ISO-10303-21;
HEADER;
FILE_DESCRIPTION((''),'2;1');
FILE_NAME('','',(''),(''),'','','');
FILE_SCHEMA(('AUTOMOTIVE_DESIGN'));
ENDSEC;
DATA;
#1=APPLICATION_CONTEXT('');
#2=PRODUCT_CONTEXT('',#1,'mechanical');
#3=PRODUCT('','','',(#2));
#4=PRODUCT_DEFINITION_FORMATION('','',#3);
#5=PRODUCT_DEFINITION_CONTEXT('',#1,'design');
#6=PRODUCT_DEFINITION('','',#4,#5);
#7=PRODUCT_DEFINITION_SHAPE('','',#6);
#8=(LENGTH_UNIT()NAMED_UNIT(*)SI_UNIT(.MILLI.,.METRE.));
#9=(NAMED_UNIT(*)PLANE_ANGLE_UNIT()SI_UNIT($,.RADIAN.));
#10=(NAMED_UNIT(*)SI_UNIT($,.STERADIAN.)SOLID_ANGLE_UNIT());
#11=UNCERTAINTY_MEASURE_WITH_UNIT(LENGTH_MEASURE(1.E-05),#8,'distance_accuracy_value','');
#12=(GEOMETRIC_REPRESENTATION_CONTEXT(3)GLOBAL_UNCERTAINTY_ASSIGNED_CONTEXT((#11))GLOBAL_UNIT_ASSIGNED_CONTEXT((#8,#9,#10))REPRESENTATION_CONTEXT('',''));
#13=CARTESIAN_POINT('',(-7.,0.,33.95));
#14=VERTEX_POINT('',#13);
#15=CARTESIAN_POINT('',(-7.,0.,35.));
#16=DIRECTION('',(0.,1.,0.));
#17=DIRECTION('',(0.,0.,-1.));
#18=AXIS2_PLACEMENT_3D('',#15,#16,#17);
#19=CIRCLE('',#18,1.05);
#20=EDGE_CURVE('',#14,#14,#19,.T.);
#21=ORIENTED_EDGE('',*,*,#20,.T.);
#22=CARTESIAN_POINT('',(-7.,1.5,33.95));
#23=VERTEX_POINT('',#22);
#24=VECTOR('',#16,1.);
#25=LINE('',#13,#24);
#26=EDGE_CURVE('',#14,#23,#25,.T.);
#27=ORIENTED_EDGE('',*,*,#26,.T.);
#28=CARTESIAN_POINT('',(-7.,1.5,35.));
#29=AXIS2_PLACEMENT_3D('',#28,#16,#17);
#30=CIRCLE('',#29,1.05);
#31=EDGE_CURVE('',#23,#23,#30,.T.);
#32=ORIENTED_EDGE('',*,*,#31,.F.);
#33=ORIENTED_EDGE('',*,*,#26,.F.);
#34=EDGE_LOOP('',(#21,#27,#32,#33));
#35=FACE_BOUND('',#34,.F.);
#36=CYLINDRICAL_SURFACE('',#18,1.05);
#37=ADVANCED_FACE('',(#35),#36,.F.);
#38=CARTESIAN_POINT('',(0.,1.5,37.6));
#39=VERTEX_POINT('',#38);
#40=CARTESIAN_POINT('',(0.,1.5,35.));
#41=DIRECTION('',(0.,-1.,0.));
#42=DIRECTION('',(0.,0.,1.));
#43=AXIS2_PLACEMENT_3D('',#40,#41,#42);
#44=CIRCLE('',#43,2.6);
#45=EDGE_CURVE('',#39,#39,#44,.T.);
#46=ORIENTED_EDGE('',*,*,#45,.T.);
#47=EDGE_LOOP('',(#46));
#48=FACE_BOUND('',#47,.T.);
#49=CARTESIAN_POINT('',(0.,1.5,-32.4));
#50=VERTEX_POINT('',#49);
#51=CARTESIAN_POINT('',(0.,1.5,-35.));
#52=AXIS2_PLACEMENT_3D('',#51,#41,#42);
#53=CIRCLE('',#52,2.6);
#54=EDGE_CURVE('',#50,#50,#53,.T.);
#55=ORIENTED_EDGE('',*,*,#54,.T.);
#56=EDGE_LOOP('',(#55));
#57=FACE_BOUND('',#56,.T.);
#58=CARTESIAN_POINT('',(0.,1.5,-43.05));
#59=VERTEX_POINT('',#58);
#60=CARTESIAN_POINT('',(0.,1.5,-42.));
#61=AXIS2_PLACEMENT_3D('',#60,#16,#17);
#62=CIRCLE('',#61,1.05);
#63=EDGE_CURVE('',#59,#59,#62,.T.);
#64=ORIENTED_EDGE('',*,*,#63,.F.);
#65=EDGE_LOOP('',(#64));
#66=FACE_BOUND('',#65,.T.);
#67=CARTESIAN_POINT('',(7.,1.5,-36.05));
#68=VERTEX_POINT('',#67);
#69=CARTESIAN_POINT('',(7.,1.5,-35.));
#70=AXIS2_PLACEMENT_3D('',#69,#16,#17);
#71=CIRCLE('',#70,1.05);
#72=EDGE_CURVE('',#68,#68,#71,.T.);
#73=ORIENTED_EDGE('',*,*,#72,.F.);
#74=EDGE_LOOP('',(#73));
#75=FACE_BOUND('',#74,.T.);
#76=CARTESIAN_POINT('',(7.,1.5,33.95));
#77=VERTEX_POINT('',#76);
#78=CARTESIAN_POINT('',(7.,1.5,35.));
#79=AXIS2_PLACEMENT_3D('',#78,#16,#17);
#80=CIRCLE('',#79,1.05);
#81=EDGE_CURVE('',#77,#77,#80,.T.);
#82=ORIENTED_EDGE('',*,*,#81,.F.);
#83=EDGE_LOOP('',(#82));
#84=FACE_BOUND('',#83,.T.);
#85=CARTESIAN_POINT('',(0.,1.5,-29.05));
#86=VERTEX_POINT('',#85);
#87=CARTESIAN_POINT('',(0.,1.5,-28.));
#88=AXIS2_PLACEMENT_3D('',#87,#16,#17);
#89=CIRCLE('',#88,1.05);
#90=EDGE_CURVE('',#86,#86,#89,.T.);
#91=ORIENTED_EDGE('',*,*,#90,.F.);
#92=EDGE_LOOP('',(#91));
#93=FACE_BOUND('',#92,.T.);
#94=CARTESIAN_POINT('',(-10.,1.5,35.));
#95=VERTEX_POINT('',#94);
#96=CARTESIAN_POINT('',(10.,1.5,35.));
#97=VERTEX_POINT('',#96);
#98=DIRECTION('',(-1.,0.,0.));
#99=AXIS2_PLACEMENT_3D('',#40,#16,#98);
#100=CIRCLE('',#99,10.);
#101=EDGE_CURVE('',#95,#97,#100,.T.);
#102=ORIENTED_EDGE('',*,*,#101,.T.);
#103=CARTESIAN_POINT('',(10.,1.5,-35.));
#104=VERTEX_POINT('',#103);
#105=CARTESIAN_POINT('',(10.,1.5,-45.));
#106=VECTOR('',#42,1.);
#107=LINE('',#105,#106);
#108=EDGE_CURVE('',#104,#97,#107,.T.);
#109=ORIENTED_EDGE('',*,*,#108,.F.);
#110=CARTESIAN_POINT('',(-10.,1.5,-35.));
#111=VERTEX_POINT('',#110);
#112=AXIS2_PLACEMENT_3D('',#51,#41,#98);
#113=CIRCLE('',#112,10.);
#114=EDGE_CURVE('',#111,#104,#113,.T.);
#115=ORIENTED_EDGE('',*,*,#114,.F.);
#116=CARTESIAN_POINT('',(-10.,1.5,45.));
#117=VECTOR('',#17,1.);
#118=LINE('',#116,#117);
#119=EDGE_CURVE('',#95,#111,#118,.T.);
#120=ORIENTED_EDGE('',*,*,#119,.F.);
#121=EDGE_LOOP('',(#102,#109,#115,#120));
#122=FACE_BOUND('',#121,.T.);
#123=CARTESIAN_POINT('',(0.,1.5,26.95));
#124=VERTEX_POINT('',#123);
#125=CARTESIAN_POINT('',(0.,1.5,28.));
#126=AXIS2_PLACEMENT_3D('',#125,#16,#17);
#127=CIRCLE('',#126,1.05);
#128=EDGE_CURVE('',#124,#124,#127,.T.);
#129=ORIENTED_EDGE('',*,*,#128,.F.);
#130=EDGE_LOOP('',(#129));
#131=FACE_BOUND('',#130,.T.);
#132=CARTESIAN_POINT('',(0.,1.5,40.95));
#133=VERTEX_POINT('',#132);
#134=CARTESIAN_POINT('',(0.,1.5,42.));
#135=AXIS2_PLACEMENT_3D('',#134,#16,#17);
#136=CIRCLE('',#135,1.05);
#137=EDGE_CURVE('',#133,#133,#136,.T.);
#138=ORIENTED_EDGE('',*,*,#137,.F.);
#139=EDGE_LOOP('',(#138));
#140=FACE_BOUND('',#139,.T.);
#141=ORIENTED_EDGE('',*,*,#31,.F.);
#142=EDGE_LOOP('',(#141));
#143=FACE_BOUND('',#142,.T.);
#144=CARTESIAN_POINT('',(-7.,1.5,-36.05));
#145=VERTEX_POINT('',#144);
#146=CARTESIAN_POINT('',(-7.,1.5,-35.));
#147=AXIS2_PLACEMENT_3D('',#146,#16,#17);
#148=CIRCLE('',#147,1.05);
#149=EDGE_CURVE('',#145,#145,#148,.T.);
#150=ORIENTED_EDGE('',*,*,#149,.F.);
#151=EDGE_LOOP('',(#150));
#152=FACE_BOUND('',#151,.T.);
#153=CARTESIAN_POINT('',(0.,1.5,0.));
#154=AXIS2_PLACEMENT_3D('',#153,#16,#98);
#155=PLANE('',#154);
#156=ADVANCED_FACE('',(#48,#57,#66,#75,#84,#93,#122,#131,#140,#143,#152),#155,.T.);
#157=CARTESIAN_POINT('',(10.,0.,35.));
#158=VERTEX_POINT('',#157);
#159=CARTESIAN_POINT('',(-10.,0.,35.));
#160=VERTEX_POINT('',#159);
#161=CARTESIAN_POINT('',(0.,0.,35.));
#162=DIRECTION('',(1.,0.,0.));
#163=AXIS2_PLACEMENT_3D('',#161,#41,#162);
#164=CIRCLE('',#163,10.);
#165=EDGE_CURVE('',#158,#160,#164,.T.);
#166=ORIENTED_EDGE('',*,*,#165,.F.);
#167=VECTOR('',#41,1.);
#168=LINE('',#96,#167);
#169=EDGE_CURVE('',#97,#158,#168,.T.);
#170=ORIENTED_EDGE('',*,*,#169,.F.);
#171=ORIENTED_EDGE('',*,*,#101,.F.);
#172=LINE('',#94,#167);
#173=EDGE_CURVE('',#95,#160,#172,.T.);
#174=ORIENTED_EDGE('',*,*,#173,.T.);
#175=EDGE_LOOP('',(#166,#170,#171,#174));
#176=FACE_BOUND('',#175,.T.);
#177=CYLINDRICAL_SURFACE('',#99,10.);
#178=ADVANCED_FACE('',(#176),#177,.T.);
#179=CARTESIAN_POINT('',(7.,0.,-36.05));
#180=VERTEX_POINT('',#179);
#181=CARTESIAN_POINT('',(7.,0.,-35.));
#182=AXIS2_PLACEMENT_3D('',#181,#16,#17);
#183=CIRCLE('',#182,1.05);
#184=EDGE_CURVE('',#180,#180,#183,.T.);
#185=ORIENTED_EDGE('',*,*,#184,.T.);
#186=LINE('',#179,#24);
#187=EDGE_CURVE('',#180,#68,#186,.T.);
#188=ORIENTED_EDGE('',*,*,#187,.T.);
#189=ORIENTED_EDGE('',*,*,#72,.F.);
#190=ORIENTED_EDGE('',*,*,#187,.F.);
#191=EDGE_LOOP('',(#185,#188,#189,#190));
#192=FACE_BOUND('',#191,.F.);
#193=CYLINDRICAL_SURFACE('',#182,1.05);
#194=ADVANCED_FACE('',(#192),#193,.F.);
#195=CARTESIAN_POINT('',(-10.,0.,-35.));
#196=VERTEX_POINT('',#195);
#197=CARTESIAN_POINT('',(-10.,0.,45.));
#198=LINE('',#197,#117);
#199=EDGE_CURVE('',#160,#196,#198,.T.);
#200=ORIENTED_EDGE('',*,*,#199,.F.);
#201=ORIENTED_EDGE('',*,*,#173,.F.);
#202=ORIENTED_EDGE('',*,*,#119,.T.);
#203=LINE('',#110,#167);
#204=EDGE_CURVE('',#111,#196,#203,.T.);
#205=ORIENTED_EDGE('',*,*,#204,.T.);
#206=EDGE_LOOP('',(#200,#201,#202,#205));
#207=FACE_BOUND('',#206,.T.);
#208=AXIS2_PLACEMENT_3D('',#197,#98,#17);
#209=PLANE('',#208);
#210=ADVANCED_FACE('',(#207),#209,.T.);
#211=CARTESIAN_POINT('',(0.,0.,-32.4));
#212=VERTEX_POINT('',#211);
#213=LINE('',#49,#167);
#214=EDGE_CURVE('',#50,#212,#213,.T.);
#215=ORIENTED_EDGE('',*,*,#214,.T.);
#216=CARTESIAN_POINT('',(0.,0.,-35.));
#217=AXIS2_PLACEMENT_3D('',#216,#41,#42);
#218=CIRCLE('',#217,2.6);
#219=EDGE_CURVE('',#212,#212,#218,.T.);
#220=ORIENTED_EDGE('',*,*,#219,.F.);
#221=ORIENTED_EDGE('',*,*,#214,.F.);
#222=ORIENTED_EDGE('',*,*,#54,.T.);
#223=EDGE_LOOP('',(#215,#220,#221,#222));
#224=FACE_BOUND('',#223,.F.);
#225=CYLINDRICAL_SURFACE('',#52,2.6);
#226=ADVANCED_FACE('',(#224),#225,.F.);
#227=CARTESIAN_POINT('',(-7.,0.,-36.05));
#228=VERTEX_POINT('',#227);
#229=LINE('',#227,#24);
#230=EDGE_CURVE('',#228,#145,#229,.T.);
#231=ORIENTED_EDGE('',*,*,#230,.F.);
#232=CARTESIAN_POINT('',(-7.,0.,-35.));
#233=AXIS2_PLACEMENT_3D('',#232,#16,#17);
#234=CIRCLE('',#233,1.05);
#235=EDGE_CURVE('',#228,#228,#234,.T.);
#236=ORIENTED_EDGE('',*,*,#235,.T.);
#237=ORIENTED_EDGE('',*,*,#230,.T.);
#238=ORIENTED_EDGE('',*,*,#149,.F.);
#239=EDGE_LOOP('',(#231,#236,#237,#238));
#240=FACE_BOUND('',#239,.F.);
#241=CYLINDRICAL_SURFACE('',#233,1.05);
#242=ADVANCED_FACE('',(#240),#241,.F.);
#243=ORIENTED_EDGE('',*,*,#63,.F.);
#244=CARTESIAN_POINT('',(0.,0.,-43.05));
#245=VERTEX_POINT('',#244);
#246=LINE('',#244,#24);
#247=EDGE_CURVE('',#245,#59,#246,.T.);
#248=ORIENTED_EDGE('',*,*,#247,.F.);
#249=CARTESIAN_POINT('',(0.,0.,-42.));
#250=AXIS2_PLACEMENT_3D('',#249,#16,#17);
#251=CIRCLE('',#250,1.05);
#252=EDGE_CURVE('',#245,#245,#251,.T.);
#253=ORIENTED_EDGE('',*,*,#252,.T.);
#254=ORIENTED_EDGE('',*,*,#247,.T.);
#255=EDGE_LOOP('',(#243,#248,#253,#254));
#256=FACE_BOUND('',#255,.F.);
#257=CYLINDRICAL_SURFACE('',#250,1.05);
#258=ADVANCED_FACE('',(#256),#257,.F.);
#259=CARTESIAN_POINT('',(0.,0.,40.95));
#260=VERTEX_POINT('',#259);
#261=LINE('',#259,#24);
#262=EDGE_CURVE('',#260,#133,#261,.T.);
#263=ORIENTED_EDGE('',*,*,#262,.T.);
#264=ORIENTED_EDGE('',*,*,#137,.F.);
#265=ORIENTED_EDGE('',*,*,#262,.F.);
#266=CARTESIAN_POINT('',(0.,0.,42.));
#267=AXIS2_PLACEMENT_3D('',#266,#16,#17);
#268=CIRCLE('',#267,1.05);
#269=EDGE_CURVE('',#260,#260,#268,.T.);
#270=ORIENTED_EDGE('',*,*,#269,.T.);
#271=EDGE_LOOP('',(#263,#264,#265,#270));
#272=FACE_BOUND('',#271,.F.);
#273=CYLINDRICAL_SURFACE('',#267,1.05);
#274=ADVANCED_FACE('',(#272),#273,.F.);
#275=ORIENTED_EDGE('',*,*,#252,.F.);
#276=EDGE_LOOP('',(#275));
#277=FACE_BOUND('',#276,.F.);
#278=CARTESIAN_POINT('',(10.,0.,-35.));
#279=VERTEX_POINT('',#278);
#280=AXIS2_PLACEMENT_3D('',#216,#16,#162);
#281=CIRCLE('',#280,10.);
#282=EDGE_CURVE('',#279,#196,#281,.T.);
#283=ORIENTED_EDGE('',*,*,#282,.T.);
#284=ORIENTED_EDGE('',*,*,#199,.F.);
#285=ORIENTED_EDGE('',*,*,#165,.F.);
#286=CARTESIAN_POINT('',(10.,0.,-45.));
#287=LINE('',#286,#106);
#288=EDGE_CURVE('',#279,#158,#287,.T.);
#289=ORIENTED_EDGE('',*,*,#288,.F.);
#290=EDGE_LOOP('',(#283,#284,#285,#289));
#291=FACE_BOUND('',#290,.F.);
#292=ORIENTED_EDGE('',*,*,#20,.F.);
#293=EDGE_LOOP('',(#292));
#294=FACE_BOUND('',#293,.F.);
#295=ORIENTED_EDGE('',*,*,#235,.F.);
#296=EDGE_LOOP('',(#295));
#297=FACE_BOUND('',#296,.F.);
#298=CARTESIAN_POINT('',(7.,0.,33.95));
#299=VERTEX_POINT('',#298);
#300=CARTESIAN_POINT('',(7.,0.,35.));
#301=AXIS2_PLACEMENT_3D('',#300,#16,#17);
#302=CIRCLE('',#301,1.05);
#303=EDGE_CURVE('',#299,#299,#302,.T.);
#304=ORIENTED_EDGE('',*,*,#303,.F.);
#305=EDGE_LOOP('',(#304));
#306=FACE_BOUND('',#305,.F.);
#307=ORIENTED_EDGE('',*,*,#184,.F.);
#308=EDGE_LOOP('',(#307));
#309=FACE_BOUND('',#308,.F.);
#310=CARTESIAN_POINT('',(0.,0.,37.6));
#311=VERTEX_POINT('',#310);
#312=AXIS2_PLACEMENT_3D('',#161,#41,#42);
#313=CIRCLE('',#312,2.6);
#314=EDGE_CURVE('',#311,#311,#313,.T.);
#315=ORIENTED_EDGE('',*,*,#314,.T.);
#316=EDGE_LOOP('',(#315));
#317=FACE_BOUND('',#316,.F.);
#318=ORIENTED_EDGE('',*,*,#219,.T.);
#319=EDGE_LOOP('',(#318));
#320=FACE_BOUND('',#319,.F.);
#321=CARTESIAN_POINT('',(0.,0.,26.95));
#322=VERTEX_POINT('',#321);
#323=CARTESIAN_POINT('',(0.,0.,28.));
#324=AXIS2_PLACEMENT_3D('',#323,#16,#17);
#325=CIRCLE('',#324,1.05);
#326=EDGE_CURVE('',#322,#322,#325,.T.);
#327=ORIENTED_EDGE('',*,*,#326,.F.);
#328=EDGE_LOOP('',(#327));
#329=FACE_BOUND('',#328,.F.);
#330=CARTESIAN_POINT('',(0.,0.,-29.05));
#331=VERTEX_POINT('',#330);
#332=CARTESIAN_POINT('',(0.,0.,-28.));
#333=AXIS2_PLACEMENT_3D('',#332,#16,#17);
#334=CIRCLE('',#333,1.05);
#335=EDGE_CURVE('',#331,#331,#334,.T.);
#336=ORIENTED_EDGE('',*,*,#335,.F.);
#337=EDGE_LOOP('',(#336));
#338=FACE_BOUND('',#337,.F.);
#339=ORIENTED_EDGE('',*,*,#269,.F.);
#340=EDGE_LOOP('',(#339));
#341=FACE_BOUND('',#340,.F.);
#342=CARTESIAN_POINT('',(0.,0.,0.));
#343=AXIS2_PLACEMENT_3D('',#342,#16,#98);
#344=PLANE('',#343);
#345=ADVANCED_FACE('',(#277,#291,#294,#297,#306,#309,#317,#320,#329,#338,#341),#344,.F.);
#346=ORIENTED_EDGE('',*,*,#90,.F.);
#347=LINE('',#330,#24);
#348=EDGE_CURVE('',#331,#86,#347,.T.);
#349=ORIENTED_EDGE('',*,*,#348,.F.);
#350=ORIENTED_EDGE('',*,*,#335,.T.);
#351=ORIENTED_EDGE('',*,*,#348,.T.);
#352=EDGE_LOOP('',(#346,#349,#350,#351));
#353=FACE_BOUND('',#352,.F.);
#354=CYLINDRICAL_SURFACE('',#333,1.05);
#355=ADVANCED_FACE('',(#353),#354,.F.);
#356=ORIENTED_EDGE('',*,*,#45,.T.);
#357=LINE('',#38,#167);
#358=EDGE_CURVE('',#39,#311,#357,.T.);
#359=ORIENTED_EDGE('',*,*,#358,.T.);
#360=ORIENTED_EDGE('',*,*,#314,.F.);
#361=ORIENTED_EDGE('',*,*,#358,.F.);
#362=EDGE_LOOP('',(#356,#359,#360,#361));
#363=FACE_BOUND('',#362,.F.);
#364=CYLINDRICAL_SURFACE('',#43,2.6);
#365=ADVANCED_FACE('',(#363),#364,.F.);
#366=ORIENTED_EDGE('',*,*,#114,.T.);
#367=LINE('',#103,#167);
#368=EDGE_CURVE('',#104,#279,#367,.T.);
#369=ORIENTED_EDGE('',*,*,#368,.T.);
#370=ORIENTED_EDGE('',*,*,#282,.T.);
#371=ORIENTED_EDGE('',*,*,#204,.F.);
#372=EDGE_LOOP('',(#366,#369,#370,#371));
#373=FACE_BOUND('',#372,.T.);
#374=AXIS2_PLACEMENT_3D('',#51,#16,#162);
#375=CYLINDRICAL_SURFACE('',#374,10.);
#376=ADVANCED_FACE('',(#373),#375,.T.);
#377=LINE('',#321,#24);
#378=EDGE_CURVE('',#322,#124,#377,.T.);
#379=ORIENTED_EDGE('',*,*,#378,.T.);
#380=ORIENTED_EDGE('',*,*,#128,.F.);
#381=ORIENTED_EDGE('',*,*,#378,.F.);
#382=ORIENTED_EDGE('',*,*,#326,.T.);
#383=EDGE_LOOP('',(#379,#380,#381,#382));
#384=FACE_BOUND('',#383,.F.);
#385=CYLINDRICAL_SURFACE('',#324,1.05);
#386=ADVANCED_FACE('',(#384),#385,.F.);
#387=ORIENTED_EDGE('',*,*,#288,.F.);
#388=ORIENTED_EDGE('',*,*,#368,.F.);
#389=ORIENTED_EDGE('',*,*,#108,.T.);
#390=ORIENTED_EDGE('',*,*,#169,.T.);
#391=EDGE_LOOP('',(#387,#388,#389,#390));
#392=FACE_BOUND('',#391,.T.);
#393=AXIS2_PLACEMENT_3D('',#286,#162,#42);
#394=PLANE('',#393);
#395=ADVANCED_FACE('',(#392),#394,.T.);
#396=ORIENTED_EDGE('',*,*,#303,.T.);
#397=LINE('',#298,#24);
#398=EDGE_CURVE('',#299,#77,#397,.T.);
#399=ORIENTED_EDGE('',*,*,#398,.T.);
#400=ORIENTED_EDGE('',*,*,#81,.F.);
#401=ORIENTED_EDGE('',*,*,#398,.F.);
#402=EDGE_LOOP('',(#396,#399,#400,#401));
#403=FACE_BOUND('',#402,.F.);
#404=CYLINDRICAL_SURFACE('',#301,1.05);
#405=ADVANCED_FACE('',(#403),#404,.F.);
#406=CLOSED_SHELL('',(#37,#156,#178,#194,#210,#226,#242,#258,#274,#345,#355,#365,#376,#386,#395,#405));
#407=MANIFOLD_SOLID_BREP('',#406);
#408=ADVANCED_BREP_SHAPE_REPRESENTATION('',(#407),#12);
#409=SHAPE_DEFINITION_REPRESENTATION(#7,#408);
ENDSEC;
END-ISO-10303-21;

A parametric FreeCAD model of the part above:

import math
import FreeCAD as App
import Part
import Sketcher


def add_polygon(sketch, points):
    """Adds a closed chain of lines whose ends are joined by coincident constraints."""
    first, n = sketch.GeometryCount, len(points)
    for a, b in zip(points, points[1:] + points[:1]):
        sketch.addGeometry(Part.LineSegment(App.Vector(*a, 0), App.Vector(*b, 0)), False)
    for i in range(n):
        sketch.addConstraint(Sketcher.Constraint("Coincident", first + i, 2, first + (i + 1) % n, 1))

doc = App.newDocument("Part")
body = doc.addObject("PartDesign::Body", "Body")

sketch1 = body.newObject("Sketcher::SketchObject", "Sketch")
sketch1.AttachmentSupport = (doc.getObject("XZ_Plane"), [""])
sketch1.MapMode = "FlatFace"
add_polygon(sketch1, [(10, -45), (-10, -45), (-10, 45), (10, 45)])
sketch1.addConstraint([
    Sketcher.Constraint("Horizontal", 0),
    Sketcher.Constraint("Vertical", 1),
    Sketcher.Constraint("Horizontal", 2),
    Sketcher.Constraint("Vertical", 3),
    Sketcher.Constraint("Symmetric", 0, 2, 2, 2, -1, 1),
    Sketcher.Constraint("DistanceX", 0, 2, 0, 1, 20.0),
    Sketcher.Constraint("DistanceY", 1, 1, 1, 2, 90.0),
])
pad1 = body.newObject("PartDesign::Pad", "Pad")
pad1.Profile = sketch1
pad1.Length = 1.5
pad1.Reversed = True

sketch2 = body.newObject("Sketcher::SketchObject", "Sketch001")
sketch2.AttachmentSupport = (doc.getObject("XZ_Plane"), [""])
sketch2.MapMode = "FlatFace"
sketch2.addGeometry([
    Part.Circle(App.Vector(0, 42, 0), App.Vector(0, 0, 1), 1.1),
    Part.Circle(App.Vector(-7, 35, 0), App.Vector(0, 0, 1), 1.1),
    Part.Circle(App.Vector(0, 28, 0), App.Vector(0, 0, 1), 1.1),
    Part.Circle(App.Vector(7, 35, 0), App.Vector(0, 0, 1), 1.1),
    Part.Circle(App.Vector(0, -28, 0), App.Vector(0, 0, 1), 1.1),
    Part.Circle(App.Vector(-7, -35, 0), App.Vector(0, 0, 1), 1.1),
    Part.Circle(App.Vector(0, -42, 0), App.Vector(0, 0, 1), 1.1),
    Part.Circle(App.Vector(7, -35, 0), App.Vector(0, 0, 1), 1.1),
], False)
sketch2.addConstraint([
    Sketcher.Constraint("Equal", 0, 1),
    Sketcher.Constraint("Equal", 1, 2),
    Sketcher.Constraint("Equal", 2, 3),
    Sketcher.Constraint("Equal", 3, 4),
    Sketcher.Constraint("Equal", 4, 5),
    Sketcher.Constraint("Equal", 5, 6),
    Sketcher.Constraint("Equal", 6, 7),
    Sketcher.Constraint("Symmetric", 2, 3, 4, 3, -1, 1),
    Sketcher.Constraint("Symmetric", 3, 3, 5, 3, -1, 1),
    Sketcher.Constraint("Symmetric", 0, 3, 6, 3, -1, 1),
    Sketcher.Constraint("Symmetric", 1, 3, 7, 3, -1, 1),
    Sketcher.Constraint("Symmetric", 1, 3, 3, 3, -2),
    Sketcher.Constraint("PointOnObject", 0, 3, -2),
    Sketcher.Constraint("PointOnObject", 2, 3, -2),
    Sketcher.Constraint("Diameter", 0, 2.1),
    Sketcher.Constraint("DistanceY", -1, 1, 0, 3, 42.0),
    Sketcher.Constraint("DistanceX", 1, 3, -1, 1, 7.0),
    Sketcher.Constraint("DistanceY", -1, 1, 1, 3, 35.0),
    Sketcher.Constraint("DistanceY", -1, 1, 2, 3, 28.0),
])
doc.recompute()
hole = body.newObject("PartDesign::Hole", "Hole")
hole.Profile = sketch2
hole.ThreadType = "None"
hole.Diameter = 2.1
hole.DepthType = "Dimension"
hole.Depth = 1.5
hole.DrillPoint = "Flat"

sketch3 = body.newObject("Sketcher::SketchObject", "Sketch002")
sketch3.AttachmentSupport = (doc.getObject("XZ_Plane"), [""])
sketch3.MapMode = "FlatFace"
sketch3.AttachmentOffset = App.Placement(App.Vector(0, 0, -1.5), App.Rotation())
sketch3.addGeometry([
    Part.ArcOfCircle(Part.Circle(App.Vector(0, -35, 0), App.Vector(0, 0, 1), 10), math.radians(-90), math.radians(0)),
    Part.LineSegment(App.Vector(10, -35, 0), App.Vector(10, -45, 0)),
    Part.LineSegment(App.Vector(10, -45, 0), App.Vector(0, -45, 0)),
    Part.ArcOfCircle(Part.Circle(App.Vector(0, -35, 0), App.Vector(0, 0, 1), 10), math.radians(180), math.radians(270)),
    Part.LineSegment(App.Vector(0, -45, 0), App.Vector(-10, -45, 0)),
    Part.LineSegment(App.Vector(-10, -45, 0), App.Vector(-10, -35, 0)),
    Part.LineSegment(App.Vector(10, 45, 0), App.Vector(10, 35, 0)),
    Part.ArcOfCircle(Part.Circle(App.Vector(0, 35, 0), App.Vector(0, 0, 1), 10), math.radians(0), math.radians(90)),
    Part.LineSegment(App.Vector(0, 45, 0), App.Vector(10, 45, 0)),
    Part.LineSegment(App.Vector(-10, 45, 0), App.Vector(0, 45, 0)),
    Part.ArcOfCircle(Part.Circle(App.Vector(0, 35, 0), App.Vector(0, 0, 1), 10), math.radians(90), math.radians(180)),
    Part.LineSegment(App.Vector(-10, 35, 0), App.Vector(-10, 45, 0)),
], False)
sketch3.addConstraint([
    Sketcher.Constraint("Tangent", 0, 2, 1, 1),
    Sketcher.Constraint("Coincident", 1, 2, 2, 1),
    Sketcher.Constraint("Tangent", 2, 2, 0, 1),
    Sketcher.Constraint("Tangent", 3, 2, 4, 1),
    Sketcher.Constraint("Coincident", 4, 2, 5, 1),
    Sketcher.Constraint("Tangent", 5, 2, 3, 1),
    Sketcher.Constraint("Tangent", 6, 2, 7, 1),
    Sketcher.Constraint("Tangent", 7, 2, 8, 1),
    Sketcher.Constraint("Coincident", 8, 2, 6, 1),
    Sketcher.Constraint("Tangent", 9, 2, 10, 1),
    Sketcher.Constraint("Tangent", 10, 2, 11, 1),
    Sketcher.Constraint("Coincident", 11, 2, 9, 1),
    Sketcher.Constraint("Vertical", 1),
    Sketcher.Constraint("Horizontal", 2),
    Sketcher.Constraint("Horizontal", 4),
    Sketcher.Constraint("Vertical", 5),
    Sketcher.Constraint("Vertical", 6),
    Sketcher.Constraint("Horizontal", 8),
    Sketcher.Constraint("Horizontal", 9),
    Sketcher.Constraint("Vertical", 11),
    Sketcher.Constraint("Coincident", 3, 3, 0, 3),
    Sketcher.Constraint("Coincident", 10, 3, 7, 3),
    Sketcher.Constraint("Equal", 0, 3),
    Sketcher.Constraint("Equal", 3, 7),
    Sketcher.Constraint("Equal", 7, 10),
    Sketcher.Constraint("Symmetric", 0, 3, 7, 3, -1, 1),
    Sketcher.Constraint("PointOnObject", 0, 3, -2),
    Sketcher.Constraint("Radius", 0, 10.0),
    Sketcher.Constraint("DistanceY", 0, 3, -1, 1, 35.0),
])
pocket1 = body.newObject("PartDesign::Pocket", "Pocket")
pocket1.Profile = sketch3
pocket1.Length = 10
pocket1.Reversed = True

sketch4 = body.newObject("Sketcher::SketchObject", "Sketch003")
sketch4.AttachmentSupport = (doc.getObject("XZ_Plane"), [""])
sketch4.MapMode = "FlatFace"
sketch4.AttachmentOffset = App.Placement(App.Vector(0, 0, -1.5), App.Rotation())
sketch4.addGeometry([
    Part.Circle(App.Vector(0, -35, 0), App.Vector(0, 0, 1), 2.6),
    Part.Circle(App.Vector(0, 35, 0), App.Vector(0, 0, 1), 2.6),
], False)
sketch4.addConstraint([
    Sketcher.Constraint("Equal", 0, 1),
    Sketcher.Constraint("Symmetric", 0, 3, 1, 3, -1, 1),
    Sketcher.Constraint("PointOnObject", 0, 3, -2),
    Sketcher.Constraint("Diameter", 0, 5.2),
    Sketcher.Constraint("DistanceY", 0, 3, -1, 1, 35.0),
])
doc.recompute()
hole2 = body.newObject("PartDesign::Hole", "Hole001")
hole2.Profile = sketch4
hole2.ThreadType = "None"
hole2.Diameter = 5.2
hole2.DepthType = "Dimension"
hole2.Depth = 1.5
hole2.DrillPoint = "Flat"
hole2.Reversed = True

doc.recompute()
